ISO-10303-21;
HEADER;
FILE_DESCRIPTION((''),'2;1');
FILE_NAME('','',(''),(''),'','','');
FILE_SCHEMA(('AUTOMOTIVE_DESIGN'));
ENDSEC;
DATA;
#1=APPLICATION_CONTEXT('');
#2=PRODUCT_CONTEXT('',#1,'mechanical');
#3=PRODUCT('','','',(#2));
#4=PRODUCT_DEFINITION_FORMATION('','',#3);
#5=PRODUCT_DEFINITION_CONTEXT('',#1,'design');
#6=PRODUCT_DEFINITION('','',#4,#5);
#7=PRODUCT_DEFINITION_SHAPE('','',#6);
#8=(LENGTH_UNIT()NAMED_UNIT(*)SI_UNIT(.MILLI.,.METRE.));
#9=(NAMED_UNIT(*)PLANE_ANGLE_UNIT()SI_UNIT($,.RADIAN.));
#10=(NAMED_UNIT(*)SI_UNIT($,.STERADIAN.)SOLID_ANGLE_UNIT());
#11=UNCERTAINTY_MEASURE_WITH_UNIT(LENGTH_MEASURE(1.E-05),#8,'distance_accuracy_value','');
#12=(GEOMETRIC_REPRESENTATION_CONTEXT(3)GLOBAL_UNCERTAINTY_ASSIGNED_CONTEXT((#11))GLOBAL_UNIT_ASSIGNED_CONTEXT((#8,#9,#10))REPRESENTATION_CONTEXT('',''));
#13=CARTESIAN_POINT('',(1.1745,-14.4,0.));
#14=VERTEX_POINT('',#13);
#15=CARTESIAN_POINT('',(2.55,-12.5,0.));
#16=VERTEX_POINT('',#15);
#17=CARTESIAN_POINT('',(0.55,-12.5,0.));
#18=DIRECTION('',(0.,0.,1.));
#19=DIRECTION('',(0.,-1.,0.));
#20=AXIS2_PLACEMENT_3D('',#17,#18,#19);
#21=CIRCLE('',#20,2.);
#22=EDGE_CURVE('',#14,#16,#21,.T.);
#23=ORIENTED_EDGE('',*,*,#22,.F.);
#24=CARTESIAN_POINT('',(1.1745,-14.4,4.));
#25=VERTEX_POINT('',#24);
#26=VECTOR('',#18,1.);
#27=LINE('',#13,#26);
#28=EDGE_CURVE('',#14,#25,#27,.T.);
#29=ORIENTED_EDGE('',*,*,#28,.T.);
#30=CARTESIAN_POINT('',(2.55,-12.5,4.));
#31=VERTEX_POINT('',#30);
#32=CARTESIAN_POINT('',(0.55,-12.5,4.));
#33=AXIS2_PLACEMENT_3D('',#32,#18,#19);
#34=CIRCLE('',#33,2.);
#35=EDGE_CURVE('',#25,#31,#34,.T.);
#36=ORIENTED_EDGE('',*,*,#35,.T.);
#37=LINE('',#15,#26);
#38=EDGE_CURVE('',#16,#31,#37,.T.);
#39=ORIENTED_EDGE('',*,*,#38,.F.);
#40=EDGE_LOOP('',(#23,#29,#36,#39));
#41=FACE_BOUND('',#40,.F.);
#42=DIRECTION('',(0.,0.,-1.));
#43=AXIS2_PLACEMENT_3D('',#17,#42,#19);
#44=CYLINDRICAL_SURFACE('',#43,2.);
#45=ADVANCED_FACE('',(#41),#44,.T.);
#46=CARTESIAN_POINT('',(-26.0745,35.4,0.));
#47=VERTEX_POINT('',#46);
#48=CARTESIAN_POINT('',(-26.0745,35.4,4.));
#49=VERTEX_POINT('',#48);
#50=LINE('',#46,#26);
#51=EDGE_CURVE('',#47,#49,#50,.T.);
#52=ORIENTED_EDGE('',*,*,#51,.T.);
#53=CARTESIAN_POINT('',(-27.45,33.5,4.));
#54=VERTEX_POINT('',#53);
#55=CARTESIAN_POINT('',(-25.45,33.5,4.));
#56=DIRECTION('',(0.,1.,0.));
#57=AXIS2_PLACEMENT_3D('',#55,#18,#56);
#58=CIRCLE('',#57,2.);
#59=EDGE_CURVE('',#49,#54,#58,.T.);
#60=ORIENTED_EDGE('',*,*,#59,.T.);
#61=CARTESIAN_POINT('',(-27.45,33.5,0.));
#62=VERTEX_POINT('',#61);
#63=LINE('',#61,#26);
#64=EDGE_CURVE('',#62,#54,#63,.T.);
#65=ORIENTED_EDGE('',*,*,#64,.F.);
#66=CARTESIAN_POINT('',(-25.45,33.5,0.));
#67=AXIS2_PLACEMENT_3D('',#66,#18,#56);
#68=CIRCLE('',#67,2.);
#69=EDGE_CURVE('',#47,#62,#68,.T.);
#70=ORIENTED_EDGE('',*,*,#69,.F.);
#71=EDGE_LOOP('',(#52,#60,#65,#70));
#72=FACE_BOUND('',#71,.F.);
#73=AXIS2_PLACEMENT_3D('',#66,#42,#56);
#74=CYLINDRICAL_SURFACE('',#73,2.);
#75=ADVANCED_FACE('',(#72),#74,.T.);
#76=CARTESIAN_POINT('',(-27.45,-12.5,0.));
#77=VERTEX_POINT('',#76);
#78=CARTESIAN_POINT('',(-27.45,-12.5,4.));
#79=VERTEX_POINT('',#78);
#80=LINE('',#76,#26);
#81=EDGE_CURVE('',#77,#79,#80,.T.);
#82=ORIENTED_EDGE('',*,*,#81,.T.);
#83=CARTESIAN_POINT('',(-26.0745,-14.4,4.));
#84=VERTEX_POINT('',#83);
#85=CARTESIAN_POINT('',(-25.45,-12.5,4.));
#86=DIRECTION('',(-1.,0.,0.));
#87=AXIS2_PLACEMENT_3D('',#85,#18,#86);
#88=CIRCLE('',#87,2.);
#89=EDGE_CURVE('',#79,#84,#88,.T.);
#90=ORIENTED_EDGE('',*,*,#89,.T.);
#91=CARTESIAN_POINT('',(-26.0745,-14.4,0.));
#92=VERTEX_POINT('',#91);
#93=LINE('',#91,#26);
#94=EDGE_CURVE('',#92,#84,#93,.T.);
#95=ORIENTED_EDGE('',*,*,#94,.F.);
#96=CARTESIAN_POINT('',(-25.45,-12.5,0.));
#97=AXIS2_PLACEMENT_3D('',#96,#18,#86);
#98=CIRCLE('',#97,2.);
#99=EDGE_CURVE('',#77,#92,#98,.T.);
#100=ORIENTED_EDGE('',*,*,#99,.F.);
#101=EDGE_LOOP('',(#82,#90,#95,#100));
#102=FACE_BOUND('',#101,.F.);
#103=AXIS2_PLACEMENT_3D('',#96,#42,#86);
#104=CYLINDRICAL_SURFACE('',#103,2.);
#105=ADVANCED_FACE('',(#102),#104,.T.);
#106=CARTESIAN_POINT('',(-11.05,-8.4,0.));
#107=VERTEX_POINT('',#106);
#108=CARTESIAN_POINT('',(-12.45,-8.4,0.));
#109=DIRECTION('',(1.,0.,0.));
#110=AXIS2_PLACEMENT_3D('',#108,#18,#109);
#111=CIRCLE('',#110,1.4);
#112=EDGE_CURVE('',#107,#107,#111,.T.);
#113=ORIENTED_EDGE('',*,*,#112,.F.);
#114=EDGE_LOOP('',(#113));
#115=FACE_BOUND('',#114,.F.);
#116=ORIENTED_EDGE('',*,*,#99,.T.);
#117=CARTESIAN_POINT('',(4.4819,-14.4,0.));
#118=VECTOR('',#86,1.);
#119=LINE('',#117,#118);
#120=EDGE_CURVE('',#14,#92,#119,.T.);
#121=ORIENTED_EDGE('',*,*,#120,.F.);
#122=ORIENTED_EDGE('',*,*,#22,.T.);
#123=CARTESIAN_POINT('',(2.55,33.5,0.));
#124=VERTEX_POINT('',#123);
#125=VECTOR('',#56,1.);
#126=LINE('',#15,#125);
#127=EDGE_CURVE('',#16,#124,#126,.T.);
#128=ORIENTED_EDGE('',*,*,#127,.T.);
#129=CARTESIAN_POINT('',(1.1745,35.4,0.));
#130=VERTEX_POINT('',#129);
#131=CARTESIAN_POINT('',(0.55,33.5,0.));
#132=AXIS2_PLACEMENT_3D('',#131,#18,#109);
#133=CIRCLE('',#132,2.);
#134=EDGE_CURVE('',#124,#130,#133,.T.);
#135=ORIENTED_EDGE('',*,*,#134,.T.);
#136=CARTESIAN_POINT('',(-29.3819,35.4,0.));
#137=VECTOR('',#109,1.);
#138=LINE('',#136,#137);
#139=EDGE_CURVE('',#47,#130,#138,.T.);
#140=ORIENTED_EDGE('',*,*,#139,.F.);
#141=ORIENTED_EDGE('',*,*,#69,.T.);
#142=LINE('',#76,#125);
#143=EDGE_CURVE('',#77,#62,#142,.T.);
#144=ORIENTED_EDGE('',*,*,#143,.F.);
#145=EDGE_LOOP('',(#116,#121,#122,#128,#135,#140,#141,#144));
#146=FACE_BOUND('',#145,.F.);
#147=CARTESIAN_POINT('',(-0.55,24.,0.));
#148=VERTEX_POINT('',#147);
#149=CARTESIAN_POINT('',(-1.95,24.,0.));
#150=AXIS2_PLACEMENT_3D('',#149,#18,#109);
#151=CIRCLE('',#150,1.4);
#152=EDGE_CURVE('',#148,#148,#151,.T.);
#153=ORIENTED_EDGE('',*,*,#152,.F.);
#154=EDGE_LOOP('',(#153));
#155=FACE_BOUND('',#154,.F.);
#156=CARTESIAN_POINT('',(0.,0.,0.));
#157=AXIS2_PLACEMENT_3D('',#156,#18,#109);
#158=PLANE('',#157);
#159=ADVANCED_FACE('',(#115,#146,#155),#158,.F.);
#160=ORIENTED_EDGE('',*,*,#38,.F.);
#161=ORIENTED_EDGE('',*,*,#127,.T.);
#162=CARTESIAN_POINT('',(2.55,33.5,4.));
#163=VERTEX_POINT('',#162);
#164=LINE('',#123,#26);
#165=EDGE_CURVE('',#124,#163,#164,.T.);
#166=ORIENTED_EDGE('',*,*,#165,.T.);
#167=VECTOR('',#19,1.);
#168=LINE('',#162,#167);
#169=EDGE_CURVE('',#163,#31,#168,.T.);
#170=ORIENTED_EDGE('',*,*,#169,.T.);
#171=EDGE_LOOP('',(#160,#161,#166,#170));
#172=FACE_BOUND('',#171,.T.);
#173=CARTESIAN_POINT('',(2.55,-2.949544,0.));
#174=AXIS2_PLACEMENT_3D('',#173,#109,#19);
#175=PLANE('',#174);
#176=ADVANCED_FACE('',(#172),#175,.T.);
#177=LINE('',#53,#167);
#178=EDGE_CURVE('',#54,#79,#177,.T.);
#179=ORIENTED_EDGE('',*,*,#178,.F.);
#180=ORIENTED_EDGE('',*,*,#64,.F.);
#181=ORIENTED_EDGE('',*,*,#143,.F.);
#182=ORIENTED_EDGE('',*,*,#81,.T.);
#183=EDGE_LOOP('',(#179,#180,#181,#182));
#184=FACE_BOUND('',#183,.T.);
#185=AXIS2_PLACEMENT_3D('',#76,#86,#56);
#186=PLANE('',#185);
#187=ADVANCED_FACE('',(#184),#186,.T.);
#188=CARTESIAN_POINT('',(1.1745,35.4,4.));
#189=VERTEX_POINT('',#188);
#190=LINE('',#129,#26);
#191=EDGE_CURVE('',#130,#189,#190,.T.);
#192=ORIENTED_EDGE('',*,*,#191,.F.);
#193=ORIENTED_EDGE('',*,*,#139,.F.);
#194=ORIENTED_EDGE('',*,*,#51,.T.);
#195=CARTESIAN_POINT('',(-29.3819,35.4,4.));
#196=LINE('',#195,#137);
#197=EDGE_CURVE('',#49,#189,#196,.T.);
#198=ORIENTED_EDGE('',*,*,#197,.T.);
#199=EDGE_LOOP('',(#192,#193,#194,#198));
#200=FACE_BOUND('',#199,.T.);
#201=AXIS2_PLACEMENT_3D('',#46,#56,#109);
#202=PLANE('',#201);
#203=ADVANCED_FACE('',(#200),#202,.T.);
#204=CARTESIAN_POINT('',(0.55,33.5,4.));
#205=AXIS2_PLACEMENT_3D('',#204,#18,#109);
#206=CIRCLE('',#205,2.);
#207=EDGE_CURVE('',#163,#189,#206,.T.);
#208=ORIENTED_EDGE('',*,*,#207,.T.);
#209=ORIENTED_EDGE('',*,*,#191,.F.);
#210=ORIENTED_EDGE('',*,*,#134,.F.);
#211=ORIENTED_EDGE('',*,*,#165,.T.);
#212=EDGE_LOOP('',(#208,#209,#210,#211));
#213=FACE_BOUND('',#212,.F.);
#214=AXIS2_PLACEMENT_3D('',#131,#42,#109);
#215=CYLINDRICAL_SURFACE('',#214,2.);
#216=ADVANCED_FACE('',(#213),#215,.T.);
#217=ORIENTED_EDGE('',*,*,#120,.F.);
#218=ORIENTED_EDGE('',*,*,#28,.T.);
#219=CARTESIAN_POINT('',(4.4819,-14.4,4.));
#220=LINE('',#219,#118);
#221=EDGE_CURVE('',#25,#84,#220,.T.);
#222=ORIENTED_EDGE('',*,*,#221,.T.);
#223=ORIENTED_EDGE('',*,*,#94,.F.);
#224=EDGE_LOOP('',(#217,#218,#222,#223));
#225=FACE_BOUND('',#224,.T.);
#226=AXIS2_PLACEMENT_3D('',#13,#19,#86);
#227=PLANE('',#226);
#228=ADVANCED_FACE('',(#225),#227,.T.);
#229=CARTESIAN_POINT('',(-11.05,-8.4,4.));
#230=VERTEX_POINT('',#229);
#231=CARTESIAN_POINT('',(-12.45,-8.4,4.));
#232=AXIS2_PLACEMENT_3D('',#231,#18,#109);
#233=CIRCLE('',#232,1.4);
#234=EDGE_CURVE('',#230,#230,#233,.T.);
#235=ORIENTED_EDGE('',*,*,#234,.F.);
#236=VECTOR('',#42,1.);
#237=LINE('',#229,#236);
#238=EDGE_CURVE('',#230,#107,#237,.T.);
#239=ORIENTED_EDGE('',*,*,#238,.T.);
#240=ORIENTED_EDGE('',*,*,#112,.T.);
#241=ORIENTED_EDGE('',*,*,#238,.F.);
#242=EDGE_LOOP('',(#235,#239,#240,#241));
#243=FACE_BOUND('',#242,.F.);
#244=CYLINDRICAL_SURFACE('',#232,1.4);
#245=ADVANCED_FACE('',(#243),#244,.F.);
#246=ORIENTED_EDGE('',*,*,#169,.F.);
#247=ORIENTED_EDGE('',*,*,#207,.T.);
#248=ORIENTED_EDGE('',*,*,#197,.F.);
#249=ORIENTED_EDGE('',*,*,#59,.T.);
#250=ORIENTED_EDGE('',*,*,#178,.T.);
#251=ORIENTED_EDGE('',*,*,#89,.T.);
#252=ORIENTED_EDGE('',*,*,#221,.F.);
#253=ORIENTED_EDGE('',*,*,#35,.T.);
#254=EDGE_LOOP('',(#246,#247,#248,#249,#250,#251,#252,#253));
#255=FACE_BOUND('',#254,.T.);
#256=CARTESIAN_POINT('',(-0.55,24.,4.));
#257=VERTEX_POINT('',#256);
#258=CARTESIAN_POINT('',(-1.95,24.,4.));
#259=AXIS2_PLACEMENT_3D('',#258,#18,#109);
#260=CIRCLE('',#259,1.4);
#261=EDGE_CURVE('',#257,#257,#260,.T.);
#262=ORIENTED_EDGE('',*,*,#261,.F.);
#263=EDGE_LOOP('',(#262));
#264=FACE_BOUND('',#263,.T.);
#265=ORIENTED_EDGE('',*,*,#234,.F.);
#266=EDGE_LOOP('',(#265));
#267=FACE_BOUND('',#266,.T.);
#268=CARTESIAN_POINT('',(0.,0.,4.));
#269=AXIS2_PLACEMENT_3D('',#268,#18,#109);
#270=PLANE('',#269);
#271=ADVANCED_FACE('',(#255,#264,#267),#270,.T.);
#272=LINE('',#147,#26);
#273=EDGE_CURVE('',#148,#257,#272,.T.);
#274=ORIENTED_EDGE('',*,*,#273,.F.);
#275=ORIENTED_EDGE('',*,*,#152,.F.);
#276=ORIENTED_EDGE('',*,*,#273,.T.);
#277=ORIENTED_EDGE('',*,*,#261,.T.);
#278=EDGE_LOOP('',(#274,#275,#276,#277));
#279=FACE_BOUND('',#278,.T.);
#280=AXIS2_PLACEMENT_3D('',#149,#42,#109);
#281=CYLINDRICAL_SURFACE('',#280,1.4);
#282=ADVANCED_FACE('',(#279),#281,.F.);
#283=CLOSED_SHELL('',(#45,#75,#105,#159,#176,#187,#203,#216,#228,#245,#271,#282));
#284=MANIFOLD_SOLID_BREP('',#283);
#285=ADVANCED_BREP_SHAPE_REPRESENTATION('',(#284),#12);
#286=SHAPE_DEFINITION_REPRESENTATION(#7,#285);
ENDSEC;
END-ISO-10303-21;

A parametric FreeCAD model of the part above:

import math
import FreeCAD as App
import Part
import Sketcher
from FreeCAD import Vector
Q = App.Units.Quantity

doc = App.newDocument("Part")
params = doc.addObject("Spreadsheet::Sheet", "Params")
for row, (alias, value) in enumerate([
    ("sketch1_radius", "2 mm"),
    ("sketch1_diameter", "2.8 mm"),
    ("sketch1_height", "46 mm"),
    ("pad1_length", "4 mm"),
    ("sketch2_diameter", "2.8 mm"),
], start=1):
    params.set(f"A{row}", alias)
    params.set(f"B{row}", "=" + value)
    params.setAlias(f"B{row}", alias)

body = doc.addObject("PartDesign::Body", "Body")

# Sketch on XY plane
sketch1 = body.newObject("Sketcher::SketchObject", "Sketch")
sketch1.AttachmentSupport = (doc.getObject("XY_Plane"), [""])
sketch1.MapMode = "FlatFace"
sketch1.addGeometry(Part.LineSegment(Vector(2.55, -12.5, 0), Vector(2.55, 33.5, 0)), False)
sketch1.addGeometry(Part.ArcOfCircle(Part.Circle(Vector(0.55, 33.5, 0), Vector(0, 0, 1), 2), math.radians(0), math.radians(71.805128)), False)
sketch1.addGeometry(Part.LineSegment(Vector(1.1745, 35.4, 0), Vector(-26.0745, 35.4, 0)), False)
sketch1.addGeometry(Part.ArcOfCircle(Part.Circle(Vector(-25.45, 33.5, 0), Vector(0, 0, 1), 2), math.radians(108.194872), math.radians(180)), False)
sketch1.addGeometry(Part.LineSegment(Vector(-27.45, 33.5, 0), Vector(-27.45, -12.5, 0)), False)
sketch1.addGeometry(Part.ArcOfCircle(Part.Circle(Vector(-25.45, -12.5, 0), Vector(0, 0, 1), 2), math.radians(180), math.radians(251.805128)), False)
sketch1.addGeometry(Part.LineSegment(Vector(-26.0745, -14.4, 0), Vector(1.1745, -14.4, 0)), False)
sketch1.addGeometry(Part.ArcOfCircle(Part.Circle(Vector(0.55, -12.5, 0), Vector(0, 0, 1), 2), math.radians(-71.805128), math.radians(0)), False)
sketch1.addGeometry(Part.Circle(Vector(-1.95, 24, 0), Vector(0, 0, 1), 1.4), False)
sketch1.addConstraint(Sketcher.Constraint("Tangent", 0, 2, 1, 1))
sketch1.addConstraint(Sketcher.Constraint("Coincident", 1, 2, 2, 1))
sketch1.addConstraint(Sketcher.Constraint("Coincident", 2, 2, 3, 1))
sketch1.addConstraint(Sketcher.Constraint("Tangent", 3, 2, 4, 1))
sketch1.addConstraint(Sketcher.Constraint("Tangent", 4, 2, 5, 1))
sketch1.addConstraint(Sketcher.Constraint("Coincident", 5, 2, 6, 1))
sketch1.addConstraint(Sketcher.Constraint("Coincident", 6, 2, 7, 1))
sketch1.addConstraint(Sketcher.Constraint("Tangent", 7, 2, 0, 1))
sketch1.addConstraint(Sketcher.Constraint("Vertical", 0))
sketch1.addConstraint(Sketcher.Constraint("Horizontal", 2))
sketch1.addConstraint(Sketcher.Constraint("Vertical", 4))
sketch1.addConstraint(Sketcher.Constraint("Horizontal", 6))
sketch1.addConstraint(Sketcher.Constraint("Equal", 1, 3))
sketch1.addConstraint(Sketcher.Constraint("Equal", 3, 5))
sketch1.addConstraint(Sketcher.Constraint("Equal", 5, 7))
sketch1.addConstraint(Sketcher.Constraint("Horizontal", 1, 3, 3, 3))
sketch1.addConstraint(Sketcher.Constraint("Horizontal", 5, 3, 7, 3))
sketch1.addConstraint(Sketcher.Constraint("Vertical", 2, 2, 5, 2))
sketch1.addConstraint(Sketcher.Constraint("Radius", 1, Q("2 mm")))
sketch1.addConstraint(Sketcher.Constraint("Diameter", 8, Q("2.8 mm")))
sketch1.addConstraint(Sketcher.Constraint("DistanceX", 4, 2, 7, 2, Q("30 mm")))
sketch1.addConstraint(Sketcher.Constraint("DistanceY", 0, 1, 0, 2, Q("46 mm")))
sketch1.addConstraint(Sketcher.Constraint("DistanceY", -1, 1, 8, 3, Q("24 mm")))
sketch1.addConstraint(Sketcher.Constraint("DistanceY", -1, 1, 1, 3, Q("33.5 mm")))
sketch1.addConstraint(Sketcher.Constraint("DistanceY", -1, 1, 1, 2, Q("35.4 mm")))
sketch1.addConstraint(Sketcher.Constraint("DistanceX", 8, 3, 1, 3, Q("2.5 mm")))
sketch1.addConstraint(Sketcher.Constraint("DistanceX", -1, 1, 1, 3, Q("0.55 mm")))
sketch1.setExpression("Constraints[18]", "Params.sketch1_radius")
sketch1.setExpression("Constraints[19]", "Params.sketch1_diameter")
sketch1.setExpression("Constraints[21]", "Params.sketch1_height")
pad1 = body.newObject("PartDesign::Pad", "Pad")
pad1.Profile = sketch1
pad1.setExpression("Length", "Params.pad1_length")

# Sketch on XY plane
sketch2 = body.newObject("Sketcher::SketchObject", "Sketch001")
sketch2.AttachmentSupport = (doc.getObject("XY_Plane"), [""])
sketch2.MapMode = "FlatFace"
sketch2.AttachmentOffset = App.Placement(Vector(0, 0, 4), App.Rotation())
sketch2.addGeometry(Part.Circle(Vector(-12.45, -8.4, 0), Vector(0, 0, 1), 1.4), False)
sketch2.addConstraint(Sketcher.Constraint("Diameter", 0, Q("2.8 mm")))
sketch2.addConstraint(Sketcher.Constraint("DistanceY", 0, 3, -1, 1, Q("8.4 mm")))
sketch2.addConstraint(Sketcher.Constraint("DistanceX", 0, 3, -1, 1, Q("12.45 mm")))
sketch2.setExpression("Constraints[0]", "Params.sketch2_diameter")
pocket1 = body.newObject("PartDesign::Pocket", "Pocket")
pocket1.Profile = sketch2
pocket1.Type = "ThroughAll"

doc.recompute()
